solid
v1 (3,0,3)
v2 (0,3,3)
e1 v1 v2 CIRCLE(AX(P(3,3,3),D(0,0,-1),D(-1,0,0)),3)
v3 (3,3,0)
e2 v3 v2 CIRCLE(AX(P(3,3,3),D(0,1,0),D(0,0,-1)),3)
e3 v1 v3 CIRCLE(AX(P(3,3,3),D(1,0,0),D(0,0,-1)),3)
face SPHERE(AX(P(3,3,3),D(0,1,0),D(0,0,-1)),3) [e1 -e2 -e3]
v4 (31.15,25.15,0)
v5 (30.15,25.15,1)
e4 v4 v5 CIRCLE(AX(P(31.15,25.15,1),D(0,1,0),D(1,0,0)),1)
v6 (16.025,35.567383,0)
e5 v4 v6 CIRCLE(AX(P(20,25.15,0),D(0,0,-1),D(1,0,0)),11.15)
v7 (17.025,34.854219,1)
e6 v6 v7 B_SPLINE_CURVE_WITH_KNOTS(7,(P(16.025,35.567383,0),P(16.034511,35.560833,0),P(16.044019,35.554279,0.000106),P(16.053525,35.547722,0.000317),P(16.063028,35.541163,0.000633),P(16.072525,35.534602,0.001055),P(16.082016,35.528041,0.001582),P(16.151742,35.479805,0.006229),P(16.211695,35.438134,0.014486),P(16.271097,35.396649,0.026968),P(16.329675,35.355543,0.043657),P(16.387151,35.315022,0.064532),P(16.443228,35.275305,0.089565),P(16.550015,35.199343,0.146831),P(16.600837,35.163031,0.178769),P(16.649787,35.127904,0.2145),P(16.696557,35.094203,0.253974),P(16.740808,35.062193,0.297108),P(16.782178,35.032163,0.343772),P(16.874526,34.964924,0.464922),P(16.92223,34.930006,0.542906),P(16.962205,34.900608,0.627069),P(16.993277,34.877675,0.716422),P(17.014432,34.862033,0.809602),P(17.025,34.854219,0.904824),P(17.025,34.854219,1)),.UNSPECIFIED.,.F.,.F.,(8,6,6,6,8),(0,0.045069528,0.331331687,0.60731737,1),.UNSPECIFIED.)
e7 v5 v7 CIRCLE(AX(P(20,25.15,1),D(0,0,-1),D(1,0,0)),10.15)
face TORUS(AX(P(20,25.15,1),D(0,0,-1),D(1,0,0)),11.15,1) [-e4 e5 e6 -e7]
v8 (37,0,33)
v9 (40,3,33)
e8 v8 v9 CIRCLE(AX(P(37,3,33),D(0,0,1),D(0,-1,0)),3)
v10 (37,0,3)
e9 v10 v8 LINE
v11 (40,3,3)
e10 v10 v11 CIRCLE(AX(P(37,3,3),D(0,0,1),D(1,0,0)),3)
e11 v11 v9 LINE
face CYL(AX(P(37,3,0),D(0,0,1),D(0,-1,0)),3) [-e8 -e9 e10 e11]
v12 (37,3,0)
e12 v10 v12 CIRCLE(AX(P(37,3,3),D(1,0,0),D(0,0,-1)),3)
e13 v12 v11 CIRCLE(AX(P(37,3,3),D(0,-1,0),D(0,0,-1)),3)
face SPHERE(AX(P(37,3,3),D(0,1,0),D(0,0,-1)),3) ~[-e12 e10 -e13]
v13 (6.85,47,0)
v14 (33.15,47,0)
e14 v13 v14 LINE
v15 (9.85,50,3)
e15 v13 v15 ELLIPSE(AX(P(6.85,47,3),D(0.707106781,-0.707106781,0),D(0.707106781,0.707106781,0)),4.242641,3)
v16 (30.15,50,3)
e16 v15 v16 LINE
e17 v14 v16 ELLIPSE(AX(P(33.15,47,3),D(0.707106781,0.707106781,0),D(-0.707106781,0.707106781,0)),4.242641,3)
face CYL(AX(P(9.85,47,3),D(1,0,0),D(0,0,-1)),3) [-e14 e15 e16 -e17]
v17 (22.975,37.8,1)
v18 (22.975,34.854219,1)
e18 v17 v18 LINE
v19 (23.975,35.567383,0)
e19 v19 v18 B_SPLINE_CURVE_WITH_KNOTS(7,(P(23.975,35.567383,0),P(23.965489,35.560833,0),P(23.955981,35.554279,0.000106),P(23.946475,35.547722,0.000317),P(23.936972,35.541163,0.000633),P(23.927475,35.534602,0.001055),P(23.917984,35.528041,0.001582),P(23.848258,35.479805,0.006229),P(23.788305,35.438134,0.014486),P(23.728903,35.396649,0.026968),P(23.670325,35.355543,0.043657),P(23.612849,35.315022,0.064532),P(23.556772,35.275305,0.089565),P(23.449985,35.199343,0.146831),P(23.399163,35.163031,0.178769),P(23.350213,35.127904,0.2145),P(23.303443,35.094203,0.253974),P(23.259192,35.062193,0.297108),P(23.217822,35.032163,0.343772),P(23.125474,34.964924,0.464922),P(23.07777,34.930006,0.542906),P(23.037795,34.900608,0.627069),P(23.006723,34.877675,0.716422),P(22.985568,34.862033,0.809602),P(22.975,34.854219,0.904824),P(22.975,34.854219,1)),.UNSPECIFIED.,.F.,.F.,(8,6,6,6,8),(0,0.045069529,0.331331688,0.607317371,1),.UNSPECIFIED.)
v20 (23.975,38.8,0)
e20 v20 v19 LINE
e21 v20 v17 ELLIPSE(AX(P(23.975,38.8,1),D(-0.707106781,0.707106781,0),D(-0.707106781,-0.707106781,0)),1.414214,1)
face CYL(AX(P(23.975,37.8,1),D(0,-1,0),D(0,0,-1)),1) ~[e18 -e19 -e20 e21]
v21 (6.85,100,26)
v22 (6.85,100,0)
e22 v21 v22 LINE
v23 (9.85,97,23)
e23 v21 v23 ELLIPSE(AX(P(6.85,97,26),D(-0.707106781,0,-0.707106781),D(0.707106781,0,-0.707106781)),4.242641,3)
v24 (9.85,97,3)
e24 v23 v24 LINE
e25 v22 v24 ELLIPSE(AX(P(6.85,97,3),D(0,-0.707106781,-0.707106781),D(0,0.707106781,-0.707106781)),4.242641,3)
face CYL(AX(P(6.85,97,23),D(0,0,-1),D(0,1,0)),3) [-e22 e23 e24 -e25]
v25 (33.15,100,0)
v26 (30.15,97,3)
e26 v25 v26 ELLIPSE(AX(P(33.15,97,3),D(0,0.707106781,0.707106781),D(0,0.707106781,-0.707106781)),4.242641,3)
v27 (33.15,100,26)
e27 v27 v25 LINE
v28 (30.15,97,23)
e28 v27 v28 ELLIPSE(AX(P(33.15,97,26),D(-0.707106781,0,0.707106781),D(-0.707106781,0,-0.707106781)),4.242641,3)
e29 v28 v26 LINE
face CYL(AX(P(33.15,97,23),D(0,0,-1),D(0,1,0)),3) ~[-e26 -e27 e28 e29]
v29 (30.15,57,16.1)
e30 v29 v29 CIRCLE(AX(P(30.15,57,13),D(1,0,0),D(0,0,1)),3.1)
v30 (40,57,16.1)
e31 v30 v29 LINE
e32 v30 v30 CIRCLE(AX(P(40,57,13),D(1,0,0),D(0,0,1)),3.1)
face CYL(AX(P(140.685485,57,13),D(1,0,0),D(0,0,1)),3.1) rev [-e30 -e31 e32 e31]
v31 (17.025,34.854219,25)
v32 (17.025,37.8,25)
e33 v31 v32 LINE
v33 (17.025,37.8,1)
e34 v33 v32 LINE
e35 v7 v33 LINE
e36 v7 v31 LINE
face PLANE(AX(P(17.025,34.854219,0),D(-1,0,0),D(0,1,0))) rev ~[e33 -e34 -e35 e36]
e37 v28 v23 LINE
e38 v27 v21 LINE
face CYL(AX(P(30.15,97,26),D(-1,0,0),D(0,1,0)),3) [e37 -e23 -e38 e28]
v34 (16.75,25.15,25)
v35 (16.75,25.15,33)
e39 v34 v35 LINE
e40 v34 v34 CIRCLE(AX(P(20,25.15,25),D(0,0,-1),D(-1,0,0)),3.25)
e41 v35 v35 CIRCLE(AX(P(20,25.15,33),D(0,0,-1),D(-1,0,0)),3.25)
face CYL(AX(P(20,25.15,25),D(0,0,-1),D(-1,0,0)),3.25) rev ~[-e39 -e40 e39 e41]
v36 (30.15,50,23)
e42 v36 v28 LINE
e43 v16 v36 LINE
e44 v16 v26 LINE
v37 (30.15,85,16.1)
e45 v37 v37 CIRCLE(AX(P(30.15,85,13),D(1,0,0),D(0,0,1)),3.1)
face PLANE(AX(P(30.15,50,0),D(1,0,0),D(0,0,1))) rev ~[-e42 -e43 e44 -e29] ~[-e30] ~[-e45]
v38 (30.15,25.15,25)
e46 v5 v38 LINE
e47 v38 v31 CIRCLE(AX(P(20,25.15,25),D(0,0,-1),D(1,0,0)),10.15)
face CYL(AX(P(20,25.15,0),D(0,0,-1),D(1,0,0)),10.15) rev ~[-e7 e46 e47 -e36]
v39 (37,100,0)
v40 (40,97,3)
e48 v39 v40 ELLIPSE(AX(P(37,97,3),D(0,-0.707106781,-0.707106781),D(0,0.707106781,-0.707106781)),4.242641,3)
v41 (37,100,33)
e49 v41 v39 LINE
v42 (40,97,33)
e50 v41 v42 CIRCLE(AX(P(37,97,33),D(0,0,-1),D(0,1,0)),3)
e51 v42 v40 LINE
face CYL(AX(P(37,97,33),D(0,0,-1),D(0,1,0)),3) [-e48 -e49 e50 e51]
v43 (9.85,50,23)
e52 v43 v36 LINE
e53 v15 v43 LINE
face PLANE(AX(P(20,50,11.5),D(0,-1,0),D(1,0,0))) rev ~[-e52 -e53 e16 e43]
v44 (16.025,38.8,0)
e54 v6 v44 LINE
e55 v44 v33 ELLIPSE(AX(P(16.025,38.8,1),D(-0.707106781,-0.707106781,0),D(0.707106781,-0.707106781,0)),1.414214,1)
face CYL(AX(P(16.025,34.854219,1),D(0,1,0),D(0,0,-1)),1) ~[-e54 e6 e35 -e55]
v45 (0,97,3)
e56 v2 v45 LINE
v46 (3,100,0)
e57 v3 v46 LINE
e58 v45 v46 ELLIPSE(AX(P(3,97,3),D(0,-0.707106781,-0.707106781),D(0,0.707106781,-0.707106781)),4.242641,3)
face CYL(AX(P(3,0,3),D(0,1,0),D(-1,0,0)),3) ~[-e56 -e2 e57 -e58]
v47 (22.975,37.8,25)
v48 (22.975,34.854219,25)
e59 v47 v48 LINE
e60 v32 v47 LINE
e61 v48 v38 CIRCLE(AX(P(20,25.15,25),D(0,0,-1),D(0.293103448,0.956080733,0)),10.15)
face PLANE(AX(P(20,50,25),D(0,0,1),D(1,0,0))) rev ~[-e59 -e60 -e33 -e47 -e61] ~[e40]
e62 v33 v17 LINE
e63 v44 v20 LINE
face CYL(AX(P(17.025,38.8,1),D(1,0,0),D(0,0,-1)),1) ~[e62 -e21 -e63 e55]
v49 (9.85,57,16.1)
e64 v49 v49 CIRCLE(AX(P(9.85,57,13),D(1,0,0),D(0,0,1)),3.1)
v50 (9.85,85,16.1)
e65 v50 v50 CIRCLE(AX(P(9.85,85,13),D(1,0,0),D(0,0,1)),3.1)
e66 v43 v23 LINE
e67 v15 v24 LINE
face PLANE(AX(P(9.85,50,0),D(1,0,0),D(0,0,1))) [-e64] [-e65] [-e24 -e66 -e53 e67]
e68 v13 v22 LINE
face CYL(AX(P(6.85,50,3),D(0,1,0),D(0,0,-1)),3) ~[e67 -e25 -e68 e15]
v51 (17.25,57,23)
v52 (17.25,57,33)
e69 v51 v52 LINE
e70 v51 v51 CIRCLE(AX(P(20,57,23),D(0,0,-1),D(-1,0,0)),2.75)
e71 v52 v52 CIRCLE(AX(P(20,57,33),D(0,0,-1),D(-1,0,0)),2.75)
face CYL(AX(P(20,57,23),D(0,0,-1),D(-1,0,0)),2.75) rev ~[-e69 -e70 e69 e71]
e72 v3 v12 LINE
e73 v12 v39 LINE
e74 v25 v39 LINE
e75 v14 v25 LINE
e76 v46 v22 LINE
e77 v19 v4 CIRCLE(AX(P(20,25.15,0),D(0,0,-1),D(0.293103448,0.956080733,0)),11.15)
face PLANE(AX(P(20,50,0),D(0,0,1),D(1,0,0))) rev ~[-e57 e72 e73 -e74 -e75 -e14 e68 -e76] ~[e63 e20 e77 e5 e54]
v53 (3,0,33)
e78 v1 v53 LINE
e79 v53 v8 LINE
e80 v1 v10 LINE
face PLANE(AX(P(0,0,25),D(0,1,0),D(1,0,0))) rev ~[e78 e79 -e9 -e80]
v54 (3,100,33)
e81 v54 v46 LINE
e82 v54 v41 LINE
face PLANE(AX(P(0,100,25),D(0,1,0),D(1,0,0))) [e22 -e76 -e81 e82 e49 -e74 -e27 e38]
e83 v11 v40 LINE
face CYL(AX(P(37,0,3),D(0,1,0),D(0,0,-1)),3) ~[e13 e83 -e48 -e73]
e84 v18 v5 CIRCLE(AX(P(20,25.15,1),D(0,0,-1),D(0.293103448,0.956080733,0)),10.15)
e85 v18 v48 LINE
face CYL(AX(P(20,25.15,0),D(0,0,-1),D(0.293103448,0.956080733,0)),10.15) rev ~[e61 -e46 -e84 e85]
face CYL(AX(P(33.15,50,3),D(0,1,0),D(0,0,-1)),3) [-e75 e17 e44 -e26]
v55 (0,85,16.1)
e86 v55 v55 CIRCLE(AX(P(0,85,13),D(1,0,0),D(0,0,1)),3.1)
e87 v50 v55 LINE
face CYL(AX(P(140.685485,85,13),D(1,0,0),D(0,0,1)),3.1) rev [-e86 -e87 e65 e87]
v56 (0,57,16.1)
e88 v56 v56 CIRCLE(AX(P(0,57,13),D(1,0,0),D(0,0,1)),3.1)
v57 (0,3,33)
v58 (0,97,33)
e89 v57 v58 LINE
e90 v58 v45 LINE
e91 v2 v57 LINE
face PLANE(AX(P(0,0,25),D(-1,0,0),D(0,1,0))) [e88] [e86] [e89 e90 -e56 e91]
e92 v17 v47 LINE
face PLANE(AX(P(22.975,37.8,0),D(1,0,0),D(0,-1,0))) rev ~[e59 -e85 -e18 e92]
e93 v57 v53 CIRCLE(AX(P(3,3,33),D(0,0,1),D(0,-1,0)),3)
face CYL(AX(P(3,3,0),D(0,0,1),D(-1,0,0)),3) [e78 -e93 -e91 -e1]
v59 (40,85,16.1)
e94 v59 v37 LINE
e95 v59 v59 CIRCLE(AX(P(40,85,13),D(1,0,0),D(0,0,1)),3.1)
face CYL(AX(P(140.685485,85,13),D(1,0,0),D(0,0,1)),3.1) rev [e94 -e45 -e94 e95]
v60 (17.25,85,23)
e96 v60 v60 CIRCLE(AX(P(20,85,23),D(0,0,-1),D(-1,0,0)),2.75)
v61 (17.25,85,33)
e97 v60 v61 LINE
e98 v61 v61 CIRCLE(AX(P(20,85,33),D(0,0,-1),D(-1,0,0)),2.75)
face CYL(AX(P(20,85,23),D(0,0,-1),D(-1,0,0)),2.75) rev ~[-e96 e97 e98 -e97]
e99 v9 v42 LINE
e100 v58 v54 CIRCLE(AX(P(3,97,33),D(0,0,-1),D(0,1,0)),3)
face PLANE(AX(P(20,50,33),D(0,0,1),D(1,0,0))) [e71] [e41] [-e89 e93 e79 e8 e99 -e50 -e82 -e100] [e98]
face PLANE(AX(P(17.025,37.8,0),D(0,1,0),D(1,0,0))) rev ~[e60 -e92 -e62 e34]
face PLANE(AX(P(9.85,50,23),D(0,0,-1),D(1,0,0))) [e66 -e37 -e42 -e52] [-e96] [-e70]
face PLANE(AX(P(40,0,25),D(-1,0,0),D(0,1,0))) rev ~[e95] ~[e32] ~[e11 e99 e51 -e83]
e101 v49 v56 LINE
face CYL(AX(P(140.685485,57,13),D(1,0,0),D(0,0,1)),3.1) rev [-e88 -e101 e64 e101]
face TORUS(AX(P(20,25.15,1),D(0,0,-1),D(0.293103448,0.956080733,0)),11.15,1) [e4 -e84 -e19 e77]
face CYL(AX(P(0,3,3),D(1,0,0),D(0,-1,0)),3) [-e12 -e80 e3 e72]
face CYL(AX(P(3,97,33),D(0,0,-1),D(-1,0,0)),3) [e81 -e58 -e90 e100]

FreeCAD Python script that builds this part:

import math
import FreeCAD as App
import Part
import Sketcher

V = App.Vector
Q = App.Units.Quantity


def edges_at(feature, points):
    """Names of the edges that pass closest to the given points."""
    edges = feature.Shape.Edges
    near = lambda p: min(range(len(edges)), key=lambda i: edges[i].distToShape(Part.Vertex(*p))[0])
    return sorted({f"Edge{near(p) + 1}" for p in points})

doc = App.newDocument("Part")
params = doc.addObject("Spreadsheet::Sheet", "Params")
for row, (alias, value) in enumerate([
    ("sketch1_width", "40 mm"),
    ("sketch1_height", "100 mm"),
    ("sketch1_radius", "10.15 mm"),
    ("sketch1_width2", "5.95 mm"),
    ("pad1_length", "25 mm"),
    ("sketch2_diameter", "5.5 mm"),
    ("sketch2_width", "40 mm"),
    ("sketch2_height", "100 mm"),
    ("pad2_length", "8 mm"),
    ("sketch3_height", "23 mm"),
    ("sketch3_width", "20.3 mm"),
    ("sketch4_diameter", "6.2 mm"),
    ("sketch5_diameter", "5.5 mm"),
    ("fillet_radius", "3 mm"),
    ("fillet2_radius", "1 mm"),
    ("sketch6_diameter", "6.5 mm"),
], start=1):
    params.set(f"A{row}", alias)
    params.set(f"B{row}", "=" + value)
    params.setAlias(f"B{row}", alias)

body = doc.addObject("PartDesign::Body", "Body")

sketch1 = doc.addObject("Sketcher::SketchObject", "Sketch")
body.addObject(sketch1)
sketch1.AttachmentSupport = (doc.XY_Plane, [""])
sketch1.MapMode = "FlatFace"
sketch1.addGeometry(Part.LineSegment(V(0, 100, 0), V(0, 0, 0)), False)
sketch1.addGeometry(Part.LineSegment(V(0, 0, 0), V(40, 0, 0)), False)
sketch1.addGeometry(Part.LineSegment(V(40, 0, 0), V(40, 100, 0)), False)
sketch1.addGeometry(Part.LineSegment(V(40, 100, 0), V(0, 100, 0)), False)
sketch1.addGeometry(Part.LineSegment(V(17, 37.8, 0), V(23, 37.8, 0)), False)
sketch1.addGeometry(Part.LineSegment(V(23, 37.8, 0), V(23, 34.9, 0)), False)
sketch1.addGeometry(Part.ArcOfCircle(Part.Circle(V(20, 25.1, 0), V(0, 0, 1), 10.2), math.radians(0), math.radians(73)), False)
sketch1.addGeometry(Part.ArcOfCircle(Part.Circle(V(20, 25.1, 0), V(0, 0, 1), 10.2), math.radians(107), math.radians(360)), False)
sketch1.addGeometry(Part.LineSegment(V(17, 34.9, 0), V(17, 37.8, 0)), False)
sketch1.addConstraint(Sketcher.Constraint("Coincident", 0, 2, 1, 1))
sketch1.addConstraint(Sketcher.Constraint("Coincident", 1, 2, 2, 1))
sketch1.addConstraint(Sketcher.Constraint("Coincident", 2, 2, 3, 1))
sketch1.addConstraint(Sketcher.Constraint("Coincident", 3, 2, 0, 1))
sketch1.addConstraint(Sketcher.Constraint("Coincident", 4, 2, 5, 1))
sketch1.addConstraint(Sketcher.Constraint("Coincident", 5, 2, 6, 2))
sketch1.addConstraint(Sketcher.Constraint("Tangent", 6, 1, 7, 2))
sketch1.addConstraint(Sketcher.Constraint("Coincident", 7, 1, 8, 1))
sketch1.addConstraint(Sketcher.Constraint("Coincident", 8, 2, 4, 1))
sketch1.addConstraint(Sketcher.Constraint("Vertical", 0))
sketch1.addConstraint(Sketcher.Constraint("Horizontal", 1))
sketch1.addConstraint(Sketcher.Constraint("Vertical", 2))
sketch1.addConstraint(Sketcher.Constraint("Horizontal", 3))
sketch1.addConstraint(Sketcher.Constraint("Horizontal", 4))
sketch1.addConstraint(Sketcher.Constraint("Vertical", 5))
sketch1.addConstraint(Sketcher.Constraint("Vertical", 8))
sketch1.addConstraint(Sketcher.Constraint("Coincident", 0, 2, -1, 1))
sketch1.addConstraint(Sketcher.Constraint("Equal", 6, 7))
sketch1.addConstraint(Sketcher.Constraint("Horizontal", 7, 3, 6, 1))
sketch1.addConstraint(Sketcher.Constraint("Horizontal", 5, 2, 7, 1))
sketch1.addConstraint(Sketcher.Constraint("DistanceX", 1, 1, 1, 2, Q("40 mm")))
sketch1.addConstraint(Sketcher.Constraint("DistanceY", 0, 2, 0, 1, Q("100 mm")))
sketch1.addConstraint(Sketcher.Constraint("Radius", 6, Q("10.15 mm")))
sketch1.addConstraint(Sketcher.Constraint("DistanceX", -1, 1, 6, 3, Q("20 mm")))
sketch1.addConstraint(Sketcher.Constraint("DistanceX", 4, 1, 4, 2, Q("5.95 mm")))
sketch1.addConstraint(Sketcher.Constraint("DistanceY", -1, 1, 4, 2, Q("37.8 mm")))
sketch1.addConstraint(Sketcher.Constraint("DistanceY", -1, 1, 6, 3, Q("25.15 mm")))
sketch1.setExpression("Constraints[20]", "Params.sketch1_width")
sketch1.setExpression("Constraints[21]", "Params.sketch1_height")
sketch1.setExpression("Constraints[22]", "Params.sketch1_radius")
sketch1.setExpression("Constraints[24]", "Params.sketch1_width2")
pad1 = doc.addObject("PartDesign::Pad", "Pad")
body.addObject(pad1)
pad1.Profile = sketch1
pad1.setExpression("Length", "Params.pad1_length")

sketch2 = doc.addObject("Sketcher::SketchObject", "Sketch001")
body.addObject(sketch2)
sketch2.AttachmentSupport = (doc.XY_Plane, [""])
sketch2.MapMode = "FlatFace"
sketch2.AttachmentOffset = App.Placement(V(0, 0, 25), App.Rotation())
sketch2.addGeometry(Part.LineSegment(V(0, 100, 0), V(0, 0, 0)), False)
sketch2.addGeometry(Part.LineSegment(V(0, 0, 0), V(40, 0, 0)), False)
sketch2.addGeometry(Part.LineSegment(V(40, 0, 0), V(40, 100, 0)), False)
sketch2.addGeometry(Part.LineSegment(V(40, 100, 0), V(0, 100, 0)), False)
sketch2.addGeometry(Part.Circle(V(20, 25.1, 0), V(0, 0, 1), 2.8), False)
sketch2.addConstraint(Sketcher.Constraint("Coincident", 0, 2, 1, 1))
sketch2.addConstraint(Sketcher.Constraint("Coincident", 1, 2, 2, 1))
sketch2.addConstraint(Sketcher.Constraint("Coincident", 2, 2, 3, 1))
sketch2.addConstraint(Sketcher.Constraint("Coincident", 3, 2, 0, 1))
sketch2.addConstraint(Sketcher.Constraint("Vertical", 0))
sketch2.addConstraint(Sketcher.Constraint("Horizontal", 1))
sketch2.addConstraint(Sketcher.Constraint("Vertical", 2))
sketch2.addConstraint(Sketcher.Constraint("Horizontal", 3))
sketch2.addConstraint(Sketcher.Constraint("Coincident", 0, 2, -1, 1))
sketch2.addConstraint(Sketcher.Constraint("Diameter", 4, Q("5.5 mm")))
sketch2.addConstraint(Sketcher.Constraint("DistanceX", 1, 1, 1, 2, Q("40 mm")))
sketch2.addConstraint(Sketcher.Constraint("DistanceY", 0, 2, 0, 1, Q("100 mm")))
sketch2.addConstraint(Sketcher.Constraint("DistanceX", -1, 1, 4, 3, Q("20 mm")))
sketch2.addConstraint(Sketcher.Constraint("DistanceY", -1, 1, 4, 3, Q("25.15 mm")))
sketch2.setExpression("Constraints[9]", "Params.sketch2_diameter")
sketch2.setExpression("Constraints[10]", "Params.sketch2_width")
sketch2.setExpression("Constraints[11]", "Params.sketch2_height")
pad2 = doc.addObject("PartDesign::Pad", "Pad001")
body.addObject(pad2)
pad2.Profile = sketch2
pad2.setExpression("Length", "Params.pad2_length")

sketch3 = doc.addObject("Sketcher::SketchObject", "Sketch002")
body.addObject(sketch3)
sketch3.AttachmentSupport = (doc.XZ_Plane, [""])
sketch3.MapMode = "FlatFace"
sketch3.AttachmentOffset = App.Placement(V(0, 0, -50), App.Rotation())
sketch3.addGeometry(Part.LineSegment(V(10, 23, 0), V(10, 0, 0)), False)
sketch3.addGeometry(Part.LineSegment(V(10, 0, 0), V(30, 0, 0)), False)
sketch3.addGeometry(Part.LineSegment(V(30, 0, 0), V(30, 23, 0)), False)
sketch3.addGeometry(Part.LineSegment(V(30, 23, 0), V(10, 23, 0)), False)
sketch3.addConstraint(Sketcher.Constraint("Coincident", 0, 2, 1, 1))
sketch3.addConstraint(Sketcher.Constraint("Coincident", 1, 2, 2, 1))
sketch3.addConstraint(Sketcher.Constraint("Coincident", 2, 2, 3, 1))
sketch3.addConstraint(Sketcher.Constraint("Coincident", 3, 2, 0, 1))
sketch3.addConstraint(Sketcher.Constraint("Vertical", 0))
sketch3.addConstraint(Sketcher.Constraint("Horizontal", 1))
sketch3.addConstraint(Sketcher.Constraint("Vertical", 2))
sketch3.addConstraint(Sketcher.Constraint("Horizontal", 3))
sketch3.addConstraint(Sketcher.Constraint("PointOnObject", 0, 2, -1))
sketch3.addConstraint(Sketcher.Constraint("DistanceY", 0, 2, 0, 1, Q("23 mm")))
sketch3.addConstraint(Sketcher.Constraint("DistanceX", 1, 1, 1, 2, Q("20.3 mm")))
sketch3.addConstraint(Sketcher.Constraint("DistanceX", -1, 1, 0, 2, Q("9.85 mm")))
sketch3.setExpression("Constraints[9]", "Params.sketch3_height")
sketch3.setExpression("Constraints[10]", "Params.sketch3_width")
pocket1 = doc.addObject("PartDesign::Pocket", "Pocket")
body.addObject(pocket1)
pocket1.Profile = sketch3
pocket1.Type = "ThroughAll"

sketch4 = doc.addObject("Sketcher::SketchObject", "Sketch003")
body.addObject(sketch4)
sketch4.AttachmentSupport = (doc.YZ_Plane, [""])
sketch4.MapMode = "FlatFace"
sketch4.AttachmentOffset = App.Placement(V(0, 0, 30.15), App.Rotation())
sketch4.addGeometry(Part.Circle(V(57, 13, 0), V(0, 0, 1), 3.1), False)
sketch4.addGeometry(Part.Circle(V(85, 13, 0), V(0, 0, 1), 3.1), False)
sketch4.addConstraint(Sketcher.Constraint("Equal", 0, 1))
sketch4.addConstraint(Sketcher.Constraint("Horizontal", 0, 3, 1, 3))
sketch4.addConstraint(Sketcher.Constraint("Diameter", 0, Q("6.2 mm")))
sketch4.addConstraint(Sketcher.Constraint("DistanceX", -1, 1, 0, 3, Q("57 mm")))
sketch4.addConstraint(Sketcher.Constraint("DistanceY", -1, 1, 0, 3, Q("13 mm")))
sketch4.addConstraint(Sketcher.Constraint("DistanceX", -1, 1, 1, 3, Q("85 mm")))
sketch4.setExpression("Constraints[2]", "Params.sketch4_diameter")
pocket2 = doc.addObject("PartDesign::Pocket", "Pocket001")
body.addObject(pocket2)
pocket2.Profile = sketch4
pocket2.Type = "ThroughAll"
pocket2.Midplane = True

sketch5 = doc.addObject("Sketcher::SketchObject", "Sketch004")
body.addObject(sketch5)
sketch5.AttachmentSupport = (doc.XY_Plane, [""])
sketch5.MapMode = "FlatFace"
sketch5.AttachmentOffset = App.Placement(V(0, 0, 23), App.Rotation())
sketch5.addGeometry(Part.Circle(V(20, 57, 0), V(0, 0, 1), 2.8), False)
sketch5.addGeometry(Part.Circle(V(20, 85, 0), V(0, 0, 1), 2.8), False)
sketch5.addConstraint(Sketcher.Constraint("Equal", 0, 1))
sketch5.addConstraint(Sketcher.Constraint("Vertical", 0, 3, 1, 3))
sketch5.addConstraint(Sketcher.Constraint("Diameter", 0, Q("5.5 mm")))
sketch5.addConstraint(Sketcher.Constraint("DistanceX", -1, 1, 0, 3, Q("20 mm")))
sketch5.addConstraint(Sketcher.Constraint("DistanceY", -1, 1, 0, 3, Q("57 mm")))
sketch5.addConstraint(Sketcher.Constraint("DistanceY", -1, 1, 1, 3, Q("85 mm")))
sketch5.setExpression("Constraints[2]", "Params.sketch5_diameter")
pocket3 = doc.addObject("PartDesign::Pocket", "Pocket002")
body.addObject(pocket3)
pocket3.Profile = sketch5
pocket3.Type = "ThroughAll"
pocket3.Reversed = True
doc.recompute()

fillet = doc.addObject("PartDesign::Fillet", "Fillet")
body.addObject(fillet)
fillet.Base = (pocket3, edges_at(pocket3, [
    (0, 50, 0),
    (40, 50, 0),
    (20, 0, 0),
    (0, 0, 16.5),
    (0, 100, 16.5),
    (40, 100, 16.5),
    (40, 0, 16.5),
    (9.85, 100, 11.5),
    (9.85, 75, 0),
    (20, 100, 23),
    (30.15, 100, 11.5),
    (30.15, 75, 0),
    (20, 50, 0),
]))
fillet.setExpression("Radius", "Params.fillet_radius")
doc.recompute()

fillet2 = doc.addObject("PartDesign::Fillet", "Fillet001")
body.addObject(fillet2)
fillet2.Base = (fillet, edges_at(fillet, [
    (22.975, 36.327, 0),
    (20, 37.8, 0),
    (17.025, 36.327, 0),
    (13.966, 16.989, 0),
]))
fillet2.setExpression("Radius", "Params.fillet2_radius")

sketch6 = doc.addObject("Sketcher::SketchObject", "Sketch005")
body.addObject(sketch6)
sketch6.AttachmentSupport = (doc.XY_Plane, [""])
sketch6.MapMode = "FlatFace"
sketch6.AttachmentOffset = App.Placement(V(0, 0, 25), App.Rotation())
sketch6.addGeometry(Part.Circle(V(20, 25.1, 0), V(0, 0, 1), 3.2), False)
sketch6.addConstraint(Sketcher.Constraint("Diameter", 0, Q("6.5 mm")))
sketch6.addConstraint(Sketcher.Constraint("DistanceX", -1, 1, 0, 3, Q("20 mm")))
sketch6.addConstraint(Sketcher.Constraint("DistanceY", -1, 1, 0, 3, Q("25.15 mm")))
sketch6.setExpression("Constraints[0]", "Params.sketch6_diameter")
pocket4 = doc.addObject("PartDesign::Pocket", "Pocket003")
body.addObject(pocket4)
pocket4.Profile = sketch6
pocket4.Type = "ThroughAll"
pocket4.Reversed = True

doc.recompute()
